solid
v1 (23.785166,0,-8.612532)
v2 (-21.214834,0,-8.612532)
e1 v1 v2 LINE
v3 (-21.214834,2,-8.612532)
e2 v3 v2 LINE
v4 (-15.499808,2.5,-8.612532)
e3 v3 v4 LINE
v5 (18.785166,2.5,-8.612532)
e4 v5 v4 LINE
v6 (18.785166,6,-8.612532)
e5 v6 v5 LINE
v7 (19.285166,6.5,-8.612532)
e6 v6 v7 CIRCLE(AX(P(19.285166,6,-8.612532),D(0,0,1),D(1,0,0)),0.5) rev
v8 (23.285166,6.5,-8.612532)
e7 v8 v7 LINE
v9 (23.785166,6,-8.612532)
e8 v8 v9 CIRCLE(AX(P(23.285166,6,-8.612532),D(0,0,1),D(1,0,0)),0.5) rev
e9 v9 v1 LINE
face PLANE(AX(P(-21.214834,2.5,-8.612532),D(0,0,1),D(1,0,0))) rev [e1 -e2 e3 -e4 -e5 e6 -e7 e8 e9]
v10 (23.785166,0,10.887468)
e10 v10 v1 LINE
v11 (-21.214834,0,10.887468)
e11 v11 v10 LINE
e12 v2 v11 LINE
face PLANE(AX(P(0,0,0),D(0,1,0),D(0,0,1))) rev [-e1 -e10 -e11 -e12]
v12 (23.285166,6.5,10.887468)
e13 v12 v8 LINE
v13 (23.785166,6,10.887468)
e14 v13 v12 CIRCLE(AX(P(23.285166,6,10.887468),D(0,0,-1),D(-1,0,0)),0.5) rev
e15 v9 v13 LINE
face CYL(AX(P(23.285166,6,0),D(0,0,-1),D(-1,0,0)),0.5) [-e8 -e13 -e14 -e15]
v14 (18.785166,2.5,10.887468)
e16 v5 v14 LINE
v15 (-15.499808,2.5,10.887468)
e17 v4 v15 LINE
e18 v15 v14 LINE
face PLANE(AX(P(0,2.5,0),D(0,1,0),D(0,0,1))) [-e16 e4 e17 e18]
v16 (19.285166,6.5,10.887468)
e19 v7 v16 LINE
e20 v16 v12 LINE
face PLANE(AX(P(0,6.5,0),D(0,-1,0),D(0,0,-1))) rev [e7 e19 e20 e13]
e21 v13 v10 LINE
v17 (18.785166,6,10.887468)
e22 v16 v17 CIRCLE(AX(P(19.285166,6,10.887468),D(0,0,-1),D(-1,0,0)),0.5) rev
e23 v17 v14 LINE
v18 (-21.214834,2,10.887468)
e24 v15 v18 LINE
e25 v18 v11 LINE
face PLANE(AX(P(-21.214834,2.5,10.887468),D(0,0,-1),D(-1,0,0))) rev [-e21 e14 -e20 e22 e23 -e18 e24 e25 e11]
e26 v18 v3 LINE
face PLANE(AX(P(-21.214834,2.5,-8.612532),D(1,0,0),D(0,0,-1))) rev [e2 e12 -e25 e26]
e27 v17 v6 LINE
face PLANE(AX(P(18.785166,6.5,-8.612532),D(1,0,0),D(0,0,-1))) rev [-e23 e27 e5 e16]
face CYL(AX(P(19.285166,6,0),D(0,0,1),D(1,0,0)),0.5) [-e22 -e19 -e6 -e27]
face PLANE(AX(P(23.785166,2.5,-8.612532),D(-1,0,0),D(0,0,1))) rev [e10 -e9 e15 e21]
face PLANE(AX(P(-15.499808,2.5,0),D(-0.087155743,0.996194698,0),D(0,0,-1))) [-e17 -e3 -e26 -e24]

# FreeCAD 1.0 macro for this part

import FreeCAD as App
import Part
import Sketcher


def edges_at(feature, points):
    """Names of the edges that pass closest to the given points."""
    edges = feature.Shape.Edges
    near = lambda p: min(range(len(edges)), key=lambda i: edges[i].distToShape(Part.Vertex(*p))[0])
    return sorted({f"Edge{near(p) + 1}" for p in points})

doc = App.newDocument("Part")
body = doc.addObject("PartDesign::Body", "Body")

# Sketch on XZ plane
sketch1 = body.newObject("Sketcher::SketchObject", "Sketch")
sketch1.AttachmentSupport = (doc.getObject("XZ_Plane"), [""])
sketch1.MapMode = "FlatFace"
sketch1.addGeometry(Part.LineSegment(App.Vector(-21, -9, 0), App.Vector(-21, 11, 0)), False)
sketch1.addGeometry(Part.LineSegment(App.Vector(-21, 11, 0), App.Vector(24, 11, 0)), False)
sketch1.addGeometry(Part.LineSegment(App.Vector(24, 11, 0), App.Vector(24, -9, 0)), False)
sketch1.addGeometry(Part.LineSegment(App.Vector(24, -9, 0), App.Vector(-21, -9, 0)), False)
sketch1.addConstraint(Sketcher.Constraint("Coincident", 0, 2, 1, 1))
sketch1.addConstraint(Sketcher.Constraint("Coincident", 1, 2, 2, 1))
sketch1.addConstraint(Sketcher.Constraint("Coincident", 2, 2, 3, 1))
sketch1.addConstraint(Sketcher.Constraint("Coincident", 3, 2, 0, 1))
sketch1.addConstraint(Sketcher.Constraint("Vertical", 0))
sketch1.addConstraint(Sketcher.Constraint("Horizontal", 1))
sketch1.addConstraint(Sketcher.Constraint("Vertical", 2))
sketch1.addConstraint(Sketcher.Constraint("Horizontal", 3))
sketch1.addConstraint(Sketcher.Constraint("DistanceX", 1, 1, 1, 2, 45.0))
sketch1.addConstraint(Sketcher.Constraint("DistanceY", 0, 1, 0, 2, 19.5))
sketch1.addConstraint(Sketcher.Constraint("DistanceY", -1, 1, 0, 2, 10.887468))
sketch1.addConstraint(Sketcher.Constraint("DistanceX", 0, 2, -1, 1, 21.214834))
pad1 = body.newObject("PartDesign::Pad", "Pad")
pad1.Profile = sketch1
pad1.Length = 2.5
pad1.Reversed = True

# Sketch on XZ plane
sketch2 = body.newObject("Sketcher::SketchObject", "Sketch001")
sketch2.AttachmentSupport = (doc.getObject("XZ_Plane"), [""])
sketch2.MapMode = "FlatFace"
sketch2.AttachmentOffset = App.Placement(App.Vector(0, 0, -2.5), App.Rotation())
sketch2.addGeometry(Part.LineSegment(App.Vector(19, -9, 0), App.Vector(19, 11, 0)), False)
sketch2.addGeometry(Part.LineSegment(App.Vector(19, 11, 0), App.Vector(24, 11, 0)), False)
sketch2.addGeometry(Part.LineSegment(App.Vector(24, 11, 0), App.Vector(24, -9, 0)), False)
sketch2.addGeometry(Part.LineSegment(App.Vector(24, -9, 0), App.Vector(19, -9, 0)), False)
sketch2.addConstraint(Sketcher.Constraint("Coincident", 0, 2, 1, 1))
sketch2.addConstraint(Sketcher.Constraint("Coincident", 1, 2, 2, 1))
sketch2.addConstraint(Sketcher.Constraint("Coincident", 2, 2, 3, 1))
sketch2.addConstraint(Sketcher.Constraint("Coincident", 3, 2, 0, 1))
sketch2.addConstraint(Sketcher.Constraint("Vertical", 0))
sketch2.addConstraint(Sketcher.Constraint("Horizontal", 1))
sketch2.addConstraint(Sketcher.Constraint("Vertical", 2))
sketch2.addConstraint(Sketcher.Constraint("Horizontal", 3))
sketch2.addConstraint(Sketcher.Constraint("DistanceX", 1, 1, 1, 2, 5.0))
sketch2.addConstraint(Sketcher.Constraint("DistanceY", 0, 1, 0, 2, 19.5))
sketch2.addConstraint(Sketcher.Constraint("DistanceY", -1, 1, 0, 2, 10.887468))
sketch2.addConstraint(Sketcher.Constraint("DistanceX", -1, 1, 0, 2, 18.785166))
pad2 = body.newObject("PartDesign::Pad", "Pad001")
pad2.Profile = sketch2
pad2.Length = 4
pad2.Reversed = True
doc.recompute()

fillet = body.newObject("PartDesign::Fillet", "Fillet")
fillet.Base = (pad2, edges_at(pad2, [(23.785, 6.5, 1.137), (18.785, 6.5, 1.137)]))
fillet.Radius = 0.5
doc.recompute()

chamfer = body.newObject("PartDesign::Chamfer", "Chamfer")
chamfer.Base = (fillet, edges_at(fillet, [(-21.215, 2.5, 1.137)]))
chamfer.ChamferType = "Two distances"
chamfer.Size = 0.5
chamfer.Size2 = 5.715026
chamfer.FlipDirection = True

doc.recompute()
